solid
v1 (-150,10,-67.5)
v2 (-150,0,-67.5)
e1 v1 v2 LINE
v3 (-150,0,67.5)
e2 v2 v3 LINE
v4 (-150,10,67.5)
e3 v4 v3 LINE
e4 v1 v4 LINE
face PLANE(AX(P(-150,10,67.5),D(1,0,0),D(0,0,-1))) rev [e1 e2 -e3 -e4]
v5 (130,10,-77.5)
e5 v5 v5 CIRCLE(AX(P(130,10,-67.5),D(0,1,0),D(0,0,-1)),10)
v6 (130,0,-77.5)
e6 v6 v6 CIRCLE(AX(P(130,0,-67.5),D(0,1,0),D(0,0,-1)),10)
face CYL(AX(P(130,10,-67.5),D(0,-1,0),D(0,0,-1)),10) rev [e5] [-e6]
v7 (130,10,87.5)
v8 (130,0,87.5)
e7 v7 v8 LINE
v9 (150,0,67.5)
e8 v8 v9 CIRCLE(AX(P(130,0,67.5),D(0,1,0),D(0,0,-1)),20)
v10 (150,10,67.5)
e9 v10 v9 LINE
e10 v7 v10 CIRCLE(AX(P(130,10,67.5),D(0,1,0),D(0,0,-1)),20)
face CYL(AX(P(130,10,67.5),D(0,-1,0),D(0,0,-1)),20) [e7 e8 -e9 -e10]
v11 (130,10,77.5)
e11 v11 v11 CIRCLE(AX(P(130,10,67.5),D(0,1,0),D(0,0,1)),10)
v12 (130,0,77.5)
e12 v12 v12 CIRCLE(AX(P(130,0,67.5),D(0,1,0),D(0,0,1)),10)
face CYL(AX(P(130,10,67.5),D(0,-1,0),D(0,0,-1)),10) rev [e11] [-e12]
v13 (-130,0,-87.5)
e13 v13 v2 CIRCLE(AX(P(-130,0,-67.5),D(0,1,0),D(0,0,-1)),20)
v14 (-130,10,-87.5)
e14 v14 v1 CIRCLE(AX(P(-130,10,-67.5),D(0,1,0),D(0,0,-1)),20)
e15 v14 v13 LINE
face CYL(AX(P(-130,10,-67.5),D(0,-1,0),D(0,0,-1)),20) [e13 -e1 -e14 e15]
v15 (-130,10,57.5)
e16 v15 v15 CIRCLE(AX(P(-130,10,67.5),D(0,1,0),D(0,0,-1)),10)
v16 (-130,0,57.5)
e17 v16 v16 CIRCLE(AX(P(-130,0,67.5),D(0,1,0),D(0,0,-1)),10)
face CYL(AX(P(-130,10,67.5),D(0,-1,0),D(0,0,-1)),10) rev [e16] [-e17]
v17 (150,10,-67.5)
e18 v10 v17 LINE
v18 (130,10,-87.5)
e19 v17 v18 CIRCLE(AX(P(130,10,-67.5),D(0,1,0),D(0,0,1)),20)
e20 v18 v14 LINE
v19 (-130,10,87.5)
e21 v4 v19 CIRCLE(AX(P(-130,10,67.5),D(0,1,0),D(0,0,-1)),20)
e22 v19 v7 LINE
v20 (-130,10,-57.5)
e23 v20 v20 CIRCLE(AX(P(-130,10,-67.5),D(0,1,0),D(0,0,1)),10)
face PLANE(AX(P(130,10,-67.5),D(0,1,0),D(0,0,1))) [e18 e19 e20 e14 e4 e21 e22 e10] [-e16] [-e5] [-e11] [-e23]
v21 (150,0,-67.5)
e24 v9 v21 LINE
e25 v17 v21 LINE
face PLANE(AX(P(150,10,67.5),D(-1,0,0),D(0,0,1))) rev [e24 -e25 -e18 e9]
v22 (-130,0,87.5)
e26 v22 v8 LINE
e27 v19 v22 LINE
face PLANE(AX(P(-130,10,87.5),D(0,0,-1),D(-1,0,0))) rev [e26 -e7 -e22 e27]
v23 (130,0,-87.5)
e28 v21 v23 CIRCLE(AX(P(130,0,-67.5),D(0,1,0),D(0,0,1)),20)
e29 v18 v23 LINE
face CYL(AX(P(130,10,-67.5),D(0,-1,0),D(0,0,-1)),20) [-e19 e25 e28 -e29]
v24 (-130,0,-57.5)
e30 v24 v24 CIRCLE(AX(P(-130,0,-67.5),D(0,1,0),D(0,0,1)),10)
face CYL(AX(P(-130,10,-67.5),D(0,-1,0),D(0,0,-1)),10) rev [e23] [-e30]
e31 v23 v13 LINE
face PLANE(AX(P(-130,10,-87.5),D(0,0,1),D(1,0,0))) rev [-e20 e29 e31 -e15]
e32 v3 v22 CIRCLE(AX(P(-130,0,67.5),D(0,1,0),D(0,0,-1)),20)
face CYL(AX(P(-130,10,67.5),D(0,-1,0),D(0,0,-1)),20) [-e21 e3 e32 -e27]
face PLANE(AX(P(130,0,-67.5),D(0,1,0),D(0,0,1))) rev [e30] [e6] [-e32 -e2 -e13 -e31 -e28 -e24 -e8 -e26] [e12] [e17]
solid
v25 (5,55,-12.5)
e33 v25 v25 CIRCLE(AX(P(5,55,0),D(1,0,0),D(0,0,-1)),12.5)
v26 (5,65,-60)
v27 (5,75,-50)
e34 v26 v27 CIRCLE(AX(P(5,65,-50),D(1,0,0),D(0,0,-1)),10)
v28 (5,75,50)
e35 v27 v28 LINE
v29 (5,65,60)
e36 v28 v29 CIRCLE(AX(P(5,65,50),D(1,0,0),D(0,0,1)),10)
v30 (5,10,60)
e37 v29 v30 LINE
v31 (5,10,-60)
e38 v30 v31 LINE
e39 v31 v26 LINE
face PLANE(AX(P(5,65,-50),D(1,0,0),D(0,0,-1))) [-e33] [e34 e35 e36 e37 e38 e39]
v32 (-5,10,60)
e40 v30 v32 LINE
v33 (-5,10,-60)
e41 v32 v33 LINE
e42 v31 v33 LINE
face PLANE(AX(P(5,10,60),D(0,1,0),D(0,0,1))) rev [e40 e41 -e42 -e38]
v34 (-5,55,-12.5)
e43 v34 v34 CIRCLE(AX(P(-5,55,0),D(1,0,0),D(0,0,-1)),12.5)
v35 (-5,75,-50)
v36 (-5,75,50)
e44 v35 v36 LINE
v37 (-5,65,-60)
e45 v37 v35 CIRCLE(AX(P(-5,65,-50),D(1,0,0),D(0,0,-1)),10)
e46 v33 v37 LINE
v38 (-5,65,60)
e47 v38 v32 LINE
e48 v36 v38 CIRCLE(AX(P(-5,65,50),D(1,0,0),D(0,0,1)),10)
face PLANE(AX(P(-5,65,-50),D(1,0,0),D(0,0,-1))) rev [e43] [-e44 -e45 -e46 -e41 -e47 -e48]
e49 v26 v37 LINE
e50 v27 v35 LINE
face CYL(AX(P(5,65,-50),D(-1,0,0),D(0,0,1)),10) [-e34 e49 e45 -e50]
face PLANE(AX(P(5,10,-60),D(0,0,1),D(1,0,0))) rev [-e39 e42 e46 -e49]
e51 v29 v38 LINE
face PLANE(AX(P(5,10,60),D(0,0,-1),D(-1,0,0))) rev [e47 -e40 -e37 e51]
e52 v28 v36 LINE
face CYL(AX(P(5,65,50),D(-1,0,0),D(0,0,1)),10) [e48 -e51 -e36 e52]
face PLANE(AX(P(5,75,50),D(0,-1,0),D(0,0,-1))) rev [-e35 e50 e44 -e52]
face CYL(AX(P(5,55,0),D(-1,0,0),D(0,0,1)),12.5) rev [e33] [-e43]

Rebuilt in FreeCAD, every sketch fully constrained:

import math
import FreeCAD as App
import Part
import Sketcher
Q = App.Units.Quantity

doc = App.newDocument("Part")
body = doc.addObject("PartDesign::Body", "Body")

sketch1 = doc.addObject("Sketcher::SketchObject", "Sketch")
body.addObject(sketch1)
sketch1.AttachmentSupport = (doc.XZ_Plane, [""])
sketch1.MapMode = "FlatFace"
sketch1.addGeometry(Part.LineSegment(App.Vector(-130, 88, 0), App.Vector(130, 88, 0)), False)
sketch1.addGeometry(Part.ArcOfCircle(Part.Circle(App.Vector(130, 68, 0), App.Vector(0, 0, 1), 20), math.radians(0), math.radians(90)), False)
sketch1.addGeometry(Part.LineSegment(App.Vector(150, 68, 0), App.Vector(150, -68, 0)), False)
sketch1.addGeometry(Part.ArcOfCircle(Part.Circle(App.Vector(130, -68, 0), App.Vector(0, 0, 1), 20), math.radians(-90), math.radians(0)), False)
sketch1.addGeometry(Part.LineSegment(App.Vector(130, -88, 0), App.Vector(-130, -88, 0)), False)
sketch1.addGeometry(Part.ArcOfCircle(Part.Circle(App.Vector(-130, -68, 0), App.Vector(0, 0, 1), 20), math.radians(180), math.radians(270)), False)
sketch1.addGeometry(Part.LineSegment(App.Vector(-150, -68, 0), App.Vector(-150, 68, 0)), False)
sketch1.addGeometry(Part.ArcOfCircle(Part.Circle(App.Vector(-130, 68, 0), App.Vector(0, 0, 1), 20), math.radians(90), math.radians(180)), False)
sketch1.addGeometry(Part.Circle(App.Vector(-130, 68, 0), App.Vector(0, 0, 1), 10), False)
sketch1.addGeometry(Part.Circle(App.Vector(130, 68, 0), App.Vector(0, 0, 1), 10), False)
sketch1.addGeometry(Part.Circle(App.Vector(-130, -68, 0), App.Vector(0, 0, 1), 10), False)
sketch1.addGeometry(Part.Circle(App.Vector(130, -68, 0), App.Vector(0, 0, 1), 10), False)
sketch1.addConstraint(Sketcher.Constraint("Tangent", 0, 2, 1, 2))
sketch1.addConstraint(Sketcher.Constraint("Tangent", 1, 1, 2, 1))
sketch1.addConstraint(Sketcher.Constraint("Tangent", 2, 2, 3, 2))
sketch1.addConstraint(Sketcher.Constraint("Tangent", 3, 1, 4, 1))
sketch1.addConstraint(Sketcher.Constraint("Tangent", 4, 2, 5, 2))
sketch1.addConstraint(Sketcher.Constraint("Tangent", 5, 1, 6, 1))
sketch1.addConstraint(Sketcher.Constraint("Tangent", 6, 2, 7, 2))
sketch1.addConstraint(Sketcher.Constraint("Tangent", 7, 1, 0, 1))
sketch1.addConstraint(Sketcher.Constraint("Horizontal", 0))
sketch1.addConstraint(Sketcher.Constraint("Vertical", 2))
sketch1.addConstraint(Sketcher.Constraint("Horizontal", 4))
sketch1.addConstraint(Sketcher.Constraint("Vertical", 6))
sketch1.addConstraint(Sketcher.Constraint("Coincident", 8, 3, 7, 3))
sketch1.addConstraint(Sketcher.Constraint("Coincident", 9, 3, 1, 3))
sketch1.addConstraint(Sketcher.Constraint("Coincident", 10, 3, 5, 3))
sketch1.addConstraint(Sketcher.Constraint("Coincident", 11, 3, 3, 3))
sketch1.addConstraint(Sketcher.Constraint("Equal", 1, 3))
sketch1.addConstraint(Sketcher.Constraint("Equal", 3, 5))
sketch1.addConstraint(Sketcher.Constraint("Equal", 5, 7))
sketch1.addConstraint(Sketcher.Constraint("Equal", 8, 9))
sketch1.addConstraint(Sketcher.Constraint("Equal", 9, 10))
sketch1.addConstraint(Sketcher.Constraint("Equal", 10, 11))
sketch1.addConstraint(Sketcher.Constraint("Symmetric", 1, 3, 5, 3, -1, 1))
sketch1.addConstraint(Sketcher.Constraint("Diameter", 8, Q("20 mm")))
sketch1.addConstraint(Sketcher.Constraint("Radius", 1, Q("20 mm")))
sketch1.addConstraint(Sketcher.Constraint("DistanceX", 0, 1, 0, 2, Q("260 mm")))
sketch1.addConstraint(Sketcher.Constraint("DistanceY", 2, 2, 2, 1, Q("135 mm")))
pad1 = doc.addObject("PartDesign::Pad", "Pad")
body.addObject(pad1)
pad1.Profile = sketch1
pad1.Length = 10
pad1.Reversed = True
body2 = doc.addObject("PartDesign::Body", "Body001")

sketch2 = doc.addObject("Sketcher::SketchObject", "Sketch001")
body2.addObject(sketch2)
sketch2.AttachmentSupport = (doc.getObject("YZ_Plane001"), [""])
sketch2.MapMode = "FlatFace"
sketch2.addGeometry(Part.LineSegment(App.Vector(65, 60, 0), App.Vector(10, 60, 0)), False)
sketch2.addGeometry(Part.LineSegment(App.Vector(10, 60, 0), App.Vector(10, -60, 0)), False)
sketch2.addGeometry(Part.LineSegment(App.Vector(10, -60, 0), App.Vector(65, -60, 0)), False)
sketch2.addGeometry(Part.ArcOfCircle(Part.Circle(App.Vector(65, -50, 0), App.Vector(0, 0, 1), 10), math.radians(-90), math.radians(0)), False)
sketch2.addGeometry(Part.LineSegment(App.Vector(75, -50, 0), App.Vector(75, 50, 0)), False)
sketch2.addGeometry(Part.ArcOfCircle(Part.Circle(App.Vector(65, 50, 0), App.Vector(0, 0, 1), 10), math.radians(0), math.radians(90)), False)
sketch2.addGeometry(Part.Circle(App.Vector(55, 0, 0), App.Vector(0, 0, 1), 12), False)
sketch2.addConstraint(Sketcher.Constraint("Coincident", 0, 2, 1, 1))
sketch2.addConstraint(Sketcher.Constraint("Coincident", 1, 2, 2, 1))
sketch2.addConstraint(Sketcher.Constraint("Tangent", 2, 2, 3, 1))
sketch2.addConstraint(Sketcher.Constraint("Tangent", 3, 2, 4, 1))
sketch2.addConstraint(Sketcher.Constraint("Tangent", 4, 2, 5, 1))
sketch2.addConstraint(Sketcher.Constraint("Tangent", 5, 2, 0, 1))
sketch2.addConstraint(Sketcher.Constraint("Horizontal", 0))
sketch2.addConstraint(Sketcher.Constraint("Vertical", 1))
sketch2.addConstraint(Sketcher.Constraint("Horizontal", 2))
sketch2.addConstraint(Sketcher.Constraint("Vertical", 4))
sketch2.addConstraint(Sketcher.Constraint("Equal", 3, 5))
sketch2.addConstraint(Sketcher.Constraint("PointOnObject", 6, 3, -1))
sketch2.addConstraint(Sketcher.Constraint("Diameter", 6, Q("25 mm")))
sketch2.addConstraint(Sketcher.Constraint("Radius", 3, Q("10 mm")))
sketch2.addConstraint(Sketcher.Constraint("DistanceX", 0, 2, 0, 1, Q("55 mm")))
sketch2.addConstraint(Sketcher.Constraint("DistanceY", 1, 2, 1, 1, Q("120 mm")))
sketch2.addConstraint(Sketcher.Constraint("DistanceX", -1, 1, 3, 3, Q("65 mm")))
sketch2.addConstraint(Sketcher.Constraint("DistanceY", 3, 3, -1, 1, Q("50 mm")))
sketch2.addConstraint(Sketcher.Constraint("DistanceX", -1, 1, 6, 3, Q("55 mm")))
pad2 = doc.addObject("PartDesign::Pad", "Pad001")
body2.addObject(pad2)
pad2.Profile = sketch2
pad2.Length = 10
pad2.Midplane = True

doc.recompute()
